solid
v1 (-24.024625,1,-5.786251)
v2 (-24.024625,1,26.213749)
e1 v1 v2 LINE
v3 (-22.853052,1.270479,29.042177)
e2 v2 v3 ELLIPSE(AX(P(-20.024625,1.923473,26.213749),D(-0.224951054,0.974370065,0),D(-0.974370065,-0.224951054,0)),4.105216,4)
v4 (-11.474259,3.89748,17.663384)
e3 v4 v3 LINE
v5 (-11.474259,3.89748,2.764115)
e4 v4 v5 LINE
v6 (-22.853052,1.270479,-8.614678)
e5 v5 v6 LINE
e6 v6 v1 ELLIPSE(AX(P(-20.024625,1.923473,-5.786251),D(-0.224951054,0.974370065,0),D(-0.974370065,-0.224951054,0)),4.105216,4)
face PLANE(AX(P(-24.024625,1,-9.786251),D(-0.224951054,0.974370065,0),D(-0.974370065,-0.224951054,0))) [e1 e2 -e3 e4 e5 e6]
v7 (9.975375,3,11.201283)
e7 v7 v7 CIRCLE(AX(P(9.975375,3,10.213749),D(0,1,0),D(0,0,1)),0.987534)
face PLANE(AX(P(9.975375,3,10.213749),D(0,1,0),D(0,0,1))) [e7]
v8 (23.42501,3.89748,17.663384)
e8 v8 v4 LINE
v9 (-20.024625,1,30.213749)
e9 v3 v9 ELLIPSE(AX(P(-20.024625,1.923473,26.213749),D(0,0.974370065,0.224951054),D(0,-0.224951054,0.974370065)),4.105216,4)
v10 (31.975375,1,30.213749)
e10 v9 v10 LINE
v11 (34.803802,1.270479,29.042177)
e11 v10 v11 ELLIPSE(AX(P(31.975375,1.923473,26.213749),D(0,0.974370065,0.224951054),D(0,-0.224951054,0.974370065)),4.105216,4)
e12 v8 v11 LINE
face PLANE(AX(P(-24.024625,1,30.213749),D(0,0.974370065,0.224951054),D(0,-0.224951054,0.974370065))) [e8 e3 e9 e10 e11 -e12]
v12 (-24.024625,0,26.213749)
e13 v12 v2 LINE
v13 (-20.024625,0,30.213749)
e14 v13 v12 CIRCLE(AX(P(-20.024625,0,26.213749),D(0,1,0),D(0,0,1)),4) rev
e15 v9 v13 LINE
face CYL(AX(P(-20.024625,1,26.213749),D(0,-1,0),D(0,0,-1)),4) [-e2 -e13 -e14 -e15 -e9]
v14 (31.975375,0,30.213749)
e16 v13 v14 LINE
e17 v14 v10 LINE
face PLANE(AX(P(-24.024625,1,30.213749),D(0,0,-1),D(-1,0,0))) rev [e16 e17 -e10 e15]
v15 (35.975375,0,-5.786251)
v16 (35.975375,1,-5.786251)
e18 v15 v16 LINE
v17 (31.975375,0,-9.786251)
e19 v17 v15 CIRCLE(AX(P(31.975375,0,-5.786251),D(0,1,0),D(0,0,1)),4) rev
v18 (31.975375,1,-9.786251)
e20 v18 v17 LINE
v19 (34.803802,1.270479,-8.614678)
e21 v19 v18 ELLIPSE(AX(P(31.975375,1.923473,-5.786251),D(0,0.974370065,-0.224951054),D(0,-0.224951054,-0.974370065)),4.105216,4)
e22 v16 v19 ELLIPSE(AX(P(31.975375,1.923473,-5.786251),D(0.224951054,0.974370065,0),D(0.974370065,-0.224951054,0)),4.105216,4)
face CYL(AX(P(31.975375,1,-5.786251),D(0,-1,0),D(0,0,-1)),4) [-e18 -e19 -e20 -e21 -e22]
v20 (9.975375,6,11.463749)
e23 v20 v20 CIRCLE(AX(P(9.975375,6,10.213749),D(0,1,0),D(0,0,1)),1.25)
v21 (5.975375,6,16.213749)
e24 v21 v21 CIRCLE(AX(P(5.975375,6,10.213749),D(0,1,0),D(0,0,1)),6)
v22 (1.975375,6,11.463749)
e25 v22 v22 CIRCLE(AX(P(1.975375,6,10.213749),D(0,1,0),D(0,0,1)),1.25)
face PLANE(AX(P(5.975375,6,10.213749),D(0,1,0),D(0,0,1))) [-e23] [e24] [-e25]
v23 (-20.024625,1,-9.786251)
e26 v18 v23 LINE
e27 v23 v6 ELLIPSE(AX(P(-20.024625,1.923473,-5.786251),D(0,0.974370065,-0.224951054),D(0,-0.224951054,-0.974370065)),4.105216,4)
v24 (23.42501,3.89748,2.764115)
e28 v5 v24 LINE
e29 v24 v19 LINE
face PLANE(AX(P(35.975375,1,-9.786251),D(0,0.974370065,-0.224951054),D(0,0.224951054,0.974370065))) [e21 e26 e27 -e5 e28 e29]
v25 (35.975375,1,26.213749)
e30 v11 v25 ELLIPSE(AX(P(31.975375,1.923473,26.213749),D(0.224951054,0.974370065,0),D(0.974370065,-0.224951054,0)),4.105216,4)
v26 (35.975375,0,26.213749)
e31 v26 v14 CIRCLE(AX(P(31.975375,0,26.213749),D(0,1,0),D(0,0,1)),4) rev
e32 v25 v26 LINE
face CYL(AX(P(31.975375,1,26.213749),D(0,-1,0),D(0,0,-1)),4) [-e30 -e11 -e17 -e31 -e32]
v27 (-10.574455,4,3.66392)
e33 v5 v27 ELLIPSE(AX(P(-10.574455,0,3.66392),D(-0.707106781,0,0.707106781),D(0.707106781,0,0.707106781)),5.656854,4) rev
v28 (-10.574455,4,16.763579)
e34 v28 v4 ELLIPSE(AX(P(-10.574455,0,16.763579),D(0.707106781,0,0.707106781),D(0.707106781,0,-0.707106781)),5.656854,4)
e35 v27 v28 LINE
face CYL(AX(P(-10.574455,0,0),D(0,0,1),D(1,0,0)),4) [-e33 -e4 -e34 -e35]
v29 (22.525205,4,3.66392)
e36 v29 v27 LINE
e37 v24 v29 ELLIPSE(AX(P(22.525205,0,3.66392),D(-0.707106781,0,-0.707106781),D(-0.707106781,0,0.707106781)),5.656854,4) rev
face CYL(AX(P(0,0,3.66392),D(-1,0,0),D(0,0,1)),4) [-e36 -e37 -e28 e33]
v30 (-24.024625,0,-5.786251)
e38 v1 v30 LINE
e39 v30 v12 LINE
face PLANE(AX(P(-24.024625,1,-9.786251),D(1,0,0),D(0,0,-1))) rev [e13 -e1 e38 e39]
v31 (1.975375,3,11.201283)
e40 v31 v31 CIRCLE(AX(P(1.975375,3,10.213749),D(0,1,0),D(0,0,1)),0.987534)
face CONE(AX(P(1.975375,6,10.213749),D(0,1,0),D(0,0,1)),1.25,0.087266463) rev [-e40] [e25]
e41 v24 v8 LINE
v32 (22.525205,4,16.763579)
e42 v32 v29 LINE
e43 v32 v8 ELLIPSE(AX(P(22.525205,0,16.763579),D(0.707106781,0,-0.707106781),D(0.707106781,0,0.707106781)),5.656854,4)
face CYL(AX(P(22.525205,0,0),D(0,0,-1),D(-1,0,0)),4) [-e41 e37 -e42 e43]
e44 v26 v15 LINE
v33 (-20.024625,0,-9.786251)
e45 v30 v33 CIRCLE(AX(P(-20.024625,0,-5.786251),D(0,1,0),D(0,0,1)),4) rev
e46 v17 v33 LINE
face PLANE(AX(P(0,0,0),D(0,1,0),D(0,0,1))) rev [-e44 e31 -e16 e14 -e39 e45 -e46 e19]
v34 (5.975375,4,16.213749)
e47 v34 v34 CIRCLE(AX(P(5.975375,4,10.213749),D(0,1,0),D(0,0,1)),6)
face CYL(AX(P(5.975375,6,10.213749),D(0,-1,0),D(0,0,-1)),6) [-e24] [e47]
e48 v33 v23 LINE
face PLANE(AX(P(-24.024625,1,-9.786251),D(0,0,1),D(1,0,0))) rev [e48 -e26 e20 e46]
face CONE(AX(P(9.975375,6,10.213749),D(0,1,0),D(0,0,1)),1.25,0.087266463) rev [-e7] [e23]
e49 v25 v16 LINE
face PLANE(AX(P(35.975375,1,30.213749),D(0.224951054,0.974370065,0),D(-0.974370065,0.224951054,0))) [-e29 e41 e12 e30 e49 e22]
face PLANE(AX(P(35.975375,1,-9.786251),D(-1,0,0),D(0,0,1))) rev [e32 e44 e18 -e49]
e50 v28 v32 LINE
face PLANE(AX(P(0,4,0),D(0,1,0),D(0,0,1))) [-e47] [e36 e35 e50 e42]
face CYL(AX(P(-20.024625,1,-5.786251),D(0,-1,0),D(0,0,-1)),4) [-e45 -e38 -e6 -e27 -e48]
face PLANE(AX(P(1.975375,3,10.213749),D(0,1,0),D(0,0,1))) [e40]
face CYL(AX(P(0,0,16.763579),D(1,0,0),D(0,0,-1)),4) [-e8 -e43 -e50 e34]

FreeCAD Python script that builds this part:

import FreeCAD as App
import Part
import Sketcher

V = App.Vector


def edges_at(feature, points):
    """Names of the edges that pass closest to the given points."""
    edges = feature.Shape.Edges
    near = lambda p: min(range(len(edges)), key=lambda i: edges[i].distToShape(Part.Vertex(*p))[0])
    return sorted({f"Edge{near(p) + 1}" for p in points})

doc = App.newDocument("Part")
params = doc.addObject("Spreadsheet::Sheet", "Params")
for row, (alias, value) in enumerate([
    ("sketch1_width", "60 mm"),
    ("sketch1_height", "40 mm"),
    ("pad1_length", "1 mm"),
    ("sketch2_width", "60 mm"),
    ("sketch2_height", "40 mm"),
    ("pad2_length", "3 mm"),
    ("pad2_taper", "-77 deg"),
    ("fillet_radius", "4 mm"),
    ("sketch3_diameter", "12 mm"),
    ("pad3_length", "2 mm"),
    ("fillet2_radius", "4 mm"),
    ("sketch4_diameter", "2.5 mm"),
    ("pocket1_length", "3 mm"),
    ("pocket1_taper", "-5 deg"),
], start=1):
    params.set(f"A{row}", alias)
    params.set(f"B{row}", "=" + value)
    params.setAlias(f"B{row}", alias)

body = doc.addObject("PartDesign::Body", "Body")

# Sketch on XZ plane
sketch1 = body.newObject("Sketcher::SketchObject", "Sketch")
sketch1.AttachmentSupport = (doc.getObject("XZ_Plane"), [""])
sketch1.MapMode = "FlatFace"
sketch1.addGeometry(Part.LineSegment(V(-24, -10, 0), V(-24, 30, 0)), False)
sketch1.addGeometry(Part.LineSegment(V(-24, 30, 0), V(36, 30, 0)), False)
sketch1.addGeometry(Part.LineSegment(V(36, 30, 0), V(36, -10, 0)), False)
sketch1.addGeometry(Part.LineSegment(V(36, -10, 0), V(-24, -10, 0)), False)
sketch1.addConstraint(Sketcher.Constraint("Coincident", 0, 2, 1, 1))
sketch1.addConstraint(Sketcher.Constraint("Coincident", 1, 2, 2, 1))
sketch1.addConstraint(Sketcher.Constraint("Coincident", 2, 2, 3, 1))
sketch1.addConstraint(Sketcher.Constraint("Coincident", 3, 2, 0, 1))
sketch1.addConstraint(Sketcher.Constraint("Vertical", 0))
sketch1.addConstraint(Sketcher.Constraint("Horizontal", 1))
sketch1.addConstraint(Sketcher.Constraint("Vertical", 2))
sketch1.addConstraint(Sketcher.Constraint("Horizontal", 3))
sketch1.addConstraint(Sketcher.Constraint("DistanceX", 1, 1, 1, 2, 60.0))
sketch1.addConstraint(Sketcher.Constraint("DistanceY", 0, 1, 0, 2, 40.0))
sketch1.addConstraint(Sketcher.Constraint("DistanceY", -1, 1, 0, 2, 30.213749))
sketch1.addConstraint(Sketcher.Constraint("DistanceX", 0, 2, -1, 1, 24.024625))
sketch1.setExpression("Constraints[8]", "Params.sketch1_width")
sketch1.setExpression("Constraints[9]", "Params.sketch1_height")
pad1 = body.newObject("PartDesign::Pad", "Pad")
pad1.Profile = sketch1
pad1.setExpression("Length", "Params.pad1_length")
pad1.Reversed = True

# Sketch on XZ plane
sketch2 = body.newObject("Sketcher::SketchObject", "Sketch001")
sketch2.AttachmentSupport = (doc.getObject("XZ_Plane"), [""])
sketch2.MapMode = "FlatFace"
sketch2.AttachmentOffset = App.Placement(V(0, 0, -1), App.Rotation())
sketch2.addGeometry(Part.LineSegment(V(-24, -10, 0), V(-24, 30, 0)), False)
sketch2.addGeometry(Part.LineSegment(V(-24, 30, 0), V(36, 30, 0)), False)
sketch2.addGeometry(Part.LineSegment(V(36, 30, 0), V(36, -10, 0)), False)
sketch2.addGeometry(Part.LineSegment(V(36, -10, 0), V(-24, -10, 0)), False)
sketch2.addConstraint(Sketcher.Constraint("Coincident", 0, 2, 1, 1))
sketch2.addConstraint(Sketcher.Constraint("Coincident", 1, 2, 2, 1))
sketch2.addConstraint(Sketcher.Constraint("Coincident", 2, 2, 3, 1))
sketch2.addConstraint(Sketcher.Constraint("Coincident", 3, 2, 0, 1))
sketch2.addConstraint(Sketcher.Constraint("Vertical", 0))
sketch2.addConstraint(Sketcher.Constraint("Horizontal", 1))
sketch2.addConstraint(Sketcher.Constraint("Vertical", 2))
sketch2.addConstraint(Sketcher.Constraint("Horizontal", 3))
sketch2.addConstraint(Sketcher.Constraint("DistanceX", 1, 1, 1, 2, 60.0))
sketch2.addConstraint(Sketcher.Constraint("DistanceY", 0, 1, 0, 2, 40.0))
sketch2.addConstraint(Sketcher.Constraint("DistanceY", -1, 1, 0, 2, 30.213749))
sketch2.addConstraint(Sketcher.Constraint("DistanceX", 0, 2, -1, 1, 24.024625))
sketch2.setExpression("Constraints[8]", "Params.sketch2_width")
sketch2.setExpression("Constraints[9]", "Params.sketch2_height")
pad2 = body.newObject("PartDesign::Pad", "Pad001")
pad2.Profile = sketch2
pad2.setExpression("Length", "Params.pad2_length")
pad2.Reversed = True
pad2.setExpression("TaperAngle", "Params.pad2_taper")
doc.recompute()

fillet = body.newObject("PartDesign::Fillet", "Fillet")
fillet.Base = (pad2, edges_at(pad2, [
    (35.975, 0.5, 30.214),
    (-24.025, 0.5, 30.214),
    (-24.025, 0.5, -9.786),
    (35.975, 0.5, -9.786),
]))
fillet.setExpression("Radius", "Params.fillet_radius")

# Sketch on XZ plane
sketch3 = body.newObject("Sketcher::SketchObject", "Sketch002")
sketch3.AttachmentSupport = (doc.getObject("XZ_Plane"), [""])
sketch3.MapMode = "FlatFace"
sketch3.AttachmentOffset = App.Placement(V(0, 0, -4), App.Rotation())
sketch3.addGeometry(Part.Circle(V(6, 10, 0), V(0, 0, 1), 6), False)
sketch3.addConstraint(Sketcher.Constraint("Diameter", 0, 12.0))
sketch3.addConstraint(Sketcher.Constraint("DistanceY", -1, 1, 0, 3, 10.213749))
sketch3.addConstraint(Sketcher.Constraint("DistanceX", -1, 1, 0, 3, 5.975375))
sketch3.setExpression("Constraints[0]", "Params.sketch3_diameter")
pad3 = body.newObject("PartDesign::Pad", "Pad002")
pad3.Profile = sketch3
pad3.setExpression("Length", "Params.pad3_length")
pad3.Reversed = True
doc.recompute()

fillet2 = body.newObject("PartDesign::Fillet", "Fillet001")
fillet2.Base = (pad3, edges_at(pad3, [
    (5.975, 4, 17.219),
    (22.981, 4, 10.214),
    (5.975, 4, 3.208),
    (-11.03, 4, 10.214),
]))
fillet2.setExpression("Radius", "Params.fillet2_radius")

# Sketch on XZ plane
sketch4 = body.newObject("Sketcher::SketchObject", "Sketch003")
sketch4.AttachmentSupport = (doc.getObject("XZ_Plane"), [""])
sketch4.MapMode = "FlatFace"
sketch4.AttachmentOffset = App.Placement(V(0, 0, -6), App.Rotation())
sketch4.addGeometry(Part.Circle(V(2, 10.2, 0), V(0, 0, 1), 1.2), False)
sketch4.addGeometry(Part.Circle(V(10, 10.2, 0), V(0, 0, 1), 1.2), False)
sketch4.addConstraint(Sketcher.Constraint("Equal", 0, 1))
sketch4.addConstraint(Sketcher.Constraint("Horizontal", 0, 3, 1, 3))
sketch4.addConstraint(Sketcher.Constraint("Diameter", 0, 2.5))
sketch4.addConstraint(Sketcher.Constraint("DistanceX", 0, 3, 1, 3, 8.0))
sketch4.addConstraint(Sketcher.Constraint("DistanceY", -1, 1, 0, 3, 10.213749))
sketch4.addConstraint(Sketcher.Constraint("DistanceX", -1, 1, 0, 3, 1.975375))
sketch4.setExpression("Constraints[2]", "Params.sketch4_diameter")
pocket1 = body.newObject("PartDesign::Pocket", "Pocket")
pocket1.Profile = sketch4
pocket1.setExpression("Length", "Params.pocket1_length")
pocket1.Reversed = True
pocket1.setExpression("TaperAngle", "Params.pocket1_taper")

doc.recompute()
